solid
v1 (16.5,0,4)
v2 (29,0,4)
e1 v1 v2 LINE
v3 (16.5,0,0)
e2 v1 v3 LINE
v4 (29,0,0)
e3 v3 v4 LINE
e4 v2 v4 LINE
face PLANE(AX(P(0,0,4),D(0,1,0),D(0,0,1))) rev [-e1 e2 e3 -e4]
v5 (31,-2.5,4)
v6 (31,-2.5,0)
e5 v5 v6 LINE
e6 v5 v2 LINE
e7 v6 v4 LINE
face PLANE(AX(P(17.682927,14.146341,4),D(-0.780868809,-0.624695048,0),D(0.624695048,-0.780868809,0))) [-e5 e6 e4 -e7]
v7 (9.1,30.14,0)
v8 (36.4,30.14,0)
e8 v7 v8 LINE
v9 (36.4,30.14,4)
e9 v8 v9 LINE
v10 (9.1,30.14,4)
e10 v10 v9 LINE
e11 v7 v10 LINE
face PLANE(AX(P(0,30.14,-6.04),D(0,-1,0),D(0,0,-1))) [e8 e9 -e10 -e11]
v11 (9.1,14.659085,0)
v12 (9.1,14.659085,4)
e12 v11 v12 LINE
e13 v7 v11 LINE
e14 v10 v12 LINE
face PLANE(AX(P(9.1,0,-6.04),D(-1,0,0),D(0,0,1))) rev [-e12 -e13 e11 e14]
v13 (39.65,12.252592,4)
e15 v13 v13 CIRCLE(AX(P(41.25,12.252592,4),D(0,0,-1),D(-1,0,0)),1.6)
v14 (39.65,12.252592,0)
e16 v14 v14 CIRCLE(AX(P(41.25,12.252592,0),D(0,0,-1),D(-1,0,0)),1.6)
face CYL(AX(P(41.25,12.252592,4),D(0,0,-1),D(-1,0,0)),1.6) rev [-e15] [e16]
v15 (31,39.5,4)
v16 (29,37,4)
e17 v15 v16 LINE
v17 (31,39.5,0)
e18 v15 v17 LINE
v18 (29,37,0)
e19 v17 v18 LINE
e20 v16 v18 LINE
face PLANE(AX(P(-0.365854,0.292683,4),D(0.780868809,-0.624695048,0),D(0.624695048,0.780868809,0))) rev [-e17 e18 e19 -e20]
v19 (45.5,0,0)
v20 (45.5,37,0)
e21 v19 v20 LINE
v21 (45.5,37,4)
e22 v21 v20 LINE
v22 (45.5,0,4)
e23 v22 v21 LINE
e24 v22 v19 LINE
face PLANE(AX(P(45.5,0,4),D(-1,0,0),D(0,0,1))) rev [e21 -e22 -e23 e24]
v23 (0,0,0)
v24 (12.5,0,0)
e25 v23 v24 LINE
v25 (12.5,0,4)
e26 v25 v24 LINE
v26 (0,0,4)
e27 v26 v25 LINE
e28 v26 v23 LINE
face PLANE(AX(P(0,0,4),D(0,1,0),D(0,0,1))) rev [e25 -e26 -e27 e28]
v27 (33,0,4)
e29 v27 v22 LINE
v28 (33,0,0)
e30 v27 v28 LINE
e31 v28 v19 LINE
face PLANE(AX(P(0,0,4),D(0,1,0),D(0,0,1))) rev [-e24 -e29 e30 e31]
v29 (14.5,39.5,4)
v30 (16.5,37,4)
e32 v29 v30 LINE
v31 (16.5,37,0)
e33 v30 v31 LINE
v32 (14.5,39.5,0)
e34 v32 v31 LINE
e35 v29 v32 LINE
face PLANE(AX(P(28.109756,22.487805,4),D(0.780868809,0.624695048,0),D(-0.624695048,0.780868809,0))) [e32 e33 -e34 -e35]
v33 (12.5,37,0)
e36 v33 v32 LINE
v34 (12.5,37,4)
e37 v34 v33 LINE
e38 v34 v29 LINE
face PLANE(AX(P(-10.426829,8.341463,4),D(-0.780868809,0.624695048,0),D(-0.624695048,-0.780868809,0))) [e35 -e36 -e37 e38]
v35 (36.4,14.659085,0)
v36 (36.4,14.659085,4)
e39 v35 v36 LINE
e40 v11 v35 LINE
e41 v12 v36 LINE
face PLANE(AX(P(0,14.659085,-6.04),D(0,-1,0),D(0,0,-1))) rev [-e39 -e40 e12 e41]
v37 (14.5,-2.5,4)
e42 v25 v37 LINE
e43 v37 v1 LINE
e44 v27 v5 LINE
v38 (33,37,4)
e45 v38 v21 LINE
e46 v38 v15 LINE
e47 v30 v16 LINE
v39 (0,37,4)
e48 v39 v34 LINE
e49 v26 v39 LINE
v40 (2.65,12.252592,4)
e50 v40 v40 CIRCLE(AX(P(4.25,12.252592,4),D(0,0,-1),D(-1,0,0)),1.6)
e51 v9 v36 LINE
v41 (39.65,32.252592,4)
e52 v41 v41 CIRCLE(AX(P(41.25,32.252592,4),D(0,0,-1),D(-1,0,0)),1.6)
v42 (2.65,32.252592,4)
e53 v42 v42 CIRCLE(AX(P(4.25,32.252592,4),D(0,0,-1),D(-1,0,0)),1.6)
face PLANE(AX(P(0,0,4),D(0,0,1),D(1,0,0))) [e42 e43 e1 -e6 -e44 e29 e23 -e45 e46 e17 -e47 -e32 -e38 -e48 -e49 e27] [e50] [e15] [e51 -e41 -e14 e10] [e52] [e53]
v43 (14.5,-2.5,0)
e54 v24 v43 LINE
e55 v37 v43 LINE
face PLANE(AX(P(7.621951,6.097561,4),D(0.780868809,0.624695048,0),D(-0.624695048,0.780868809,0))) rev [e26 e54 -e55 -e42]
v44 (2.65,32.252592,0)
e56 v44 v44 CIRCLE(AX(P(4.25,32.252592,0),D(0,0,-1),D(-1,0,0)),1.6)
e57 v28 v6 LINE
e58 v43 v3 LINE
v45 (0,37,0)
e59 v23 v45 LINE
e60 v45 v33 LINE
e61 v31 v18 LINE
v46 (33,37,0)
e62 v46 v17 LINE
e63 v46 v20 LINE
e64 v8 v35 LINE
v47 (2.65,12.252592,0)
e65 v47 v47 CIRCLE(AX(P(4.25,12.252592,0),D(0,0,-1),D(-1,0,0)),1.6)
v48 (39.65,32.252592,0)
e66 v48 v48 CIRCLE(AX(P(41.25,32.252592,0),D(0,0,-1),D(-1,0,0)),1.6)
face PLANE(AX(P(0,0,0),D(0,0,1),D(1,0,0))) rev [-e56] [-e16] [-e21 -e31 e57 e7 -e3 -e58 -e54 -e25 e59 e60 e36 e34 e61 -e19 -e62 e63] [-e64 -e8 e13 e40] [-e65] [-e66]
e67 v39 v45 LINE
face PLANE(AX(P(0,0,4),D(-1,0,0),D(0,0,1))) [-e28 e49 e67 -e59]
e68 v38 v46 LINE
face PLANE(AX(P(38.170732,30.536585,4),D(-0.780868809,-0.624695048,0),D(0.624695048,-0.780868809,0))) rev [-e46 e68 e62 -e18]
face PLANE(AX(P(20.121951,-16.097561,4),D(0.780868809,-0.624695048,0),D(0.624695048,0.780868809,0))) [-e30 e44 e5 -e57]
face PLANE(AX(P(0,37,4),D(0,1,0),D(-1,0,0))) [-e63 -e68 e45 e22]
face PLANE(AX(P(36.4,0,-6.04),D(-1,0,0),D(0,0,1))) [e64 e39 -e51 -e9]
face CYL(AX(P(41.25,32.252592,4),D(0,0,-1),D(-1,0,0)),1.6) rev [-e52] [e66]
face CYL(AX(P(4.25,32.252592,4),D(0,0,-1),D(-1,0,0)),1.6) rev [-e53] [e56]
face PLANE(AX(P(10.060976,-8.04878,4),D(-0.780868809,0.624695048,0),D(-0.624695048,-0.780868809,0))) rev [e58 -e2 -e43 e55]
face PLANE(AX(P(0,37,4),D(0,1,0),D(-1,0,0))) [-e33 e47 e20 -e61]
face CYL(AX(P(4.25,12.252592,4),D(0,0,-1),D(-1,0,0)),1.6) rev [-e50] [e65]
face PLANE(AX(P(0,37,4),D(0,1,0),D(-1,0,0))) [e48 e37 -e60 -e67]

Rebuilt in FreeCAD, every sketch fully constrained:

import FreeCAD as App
import Part
import Sketcher
Q = App.Units.Quantity


def add_polygon(sketch, points):
    """Adds a closed chain of lines whose ends are joined by coincident constraints."""
    first, n = sketch.GeometryCount, len(points)
    for a, b in zip(points, points[1:] + points[:1]):
        sketch.addGeometry(Part.LineSegment(App.Vector(*a, 0), App.Vector(*b, 0)), False)
    for i in range(n):
        sketch.addConstraint(Sketcher.Constraint("Coincident", first + i, 2, first + (i + 1) % n, 1))

doc = App.newDocument("Part")
body = doc.addObject("PartDesign::Body", "Body")

# Sketch on XY plane
sketch1 = doc.addObject("Sketcher::SketchObject", "Sketch")
body.addObject(sketch1)
sketch1.AttachmentSupport = (doc.XY_Plane, [""])
sketch1.MapMode = "FlatFace"
add_polygon(sketch1, [(0, 37), (0, 0), (12.5, 0), (14.5, -2.5), (16.5, 0), (29, 0), (31, -2.5), (33, 0), (45.5, 0), (45.5, 37), (33, 37), (31, 39.5), (29, 37), (16.5, 37), (14.5, 39.5), (12.5, 37)])  # lines 0-15
sketch1.addConstraint([
    Sketcher.Constraint("Vertical", 0),
    Sketcher.Constraint("Horizontal", 1),
    Sketcher.Constraint("Horizontal", 4),
    Sketcher.Constraint("Horizontal", 7),
    Sketcher.Constraint("Vertical", 8),
    Sketcher.Constraint("Horizontal", 9),
    Sketcher.Constraint("Horizontal", 12),
    Sketcher.Constraint("Horizontal", 15),
    Sketcher.Constraint("Coincident", 0, 2, -1, 1),
    Sketcher.Constraint("PointOnObject", 3, 2, -1),
    Sketcher.Constraint("PointOnObject", 6, 2, -1),
    Sketcher.Constraint("Parallel", 2, 5),
    Sketcher.Constraint("Parallel", 3, 6),
    Sketcher.Constraint("Parallel", 5, 10),
    Sketcher.Constraint("Parallel", 6, 11),
    Sketcher.Constraint("Parallel", 10, 13),
    Sketcher.Constraint("Parallel", 11, 14),
    Sketcher.Constraint("Horizontal", 2, 2, 5, 2),
    Sketcher.Constraint("Horizontal", 9, 2, 11, 2),
    Sketcher.Constraint("Horizontal", 10, 2, 13, 2),
    Sketcher.Constraint("Horizontal", 12, 2, 14, 2),
    Sketcher.Constraint("Vertical", 6, 2, 9, 2),
    Sketcher.Constraint("Vertical", 5, 2, 10, 2),
    Sketcher.Constraint("Vertical", 4, 2, 11, 2),
    Sketcher.Constraint("Vertical", 3, 2, 12, 2),
    Sketcher.Constraint("Equal", 1, 4),
    Sketcher.Constraint("Equal", 4, 7),
    Sketcher.Constraint("DistanceY", 0, 2, 0, 1, Q("37 mm")),
    Sketcher.Constraint("DistanceX", 1, 1, 1, 2, Q("12.5 mm")),
    Sketcher.Constraint("DistanceX", -1, 1, 4, 2, Q("29 mm")),
    Sketcher.Constraint("DistanceY", 5, 2, 10, 2, Q("42 mm")),
])
pad1 = doc.addObject("PartDesign::Pad", "Pad")
body.addObject(pad1)
pad1.Profile = sketch1
pad1.Length = 4

# Sketch on XY plane
sketch2 = doc.addObject("Sketcher::SketchObject", "Sketch001")
body.addObject(sketch2)
sketch2.AttachmentSupport = (doc.XY_Plane, [""])
sketch2.MapMode = "FlatFace"
sketch2.AttachmentOffset = App.Placement(App.Vector(0, 0, 4), App.Rotation())
add_polygon(sketch2, [(9, 30), (9, 15), (36, 15), (36, 30)])  # lines 0-3
sketch2.addConstraint([
    Sketcher.Constraint("Vertical", 0),
    Sketcher.Constraint("Horizontal", 1),
    Sketcher.Constraint("Vertical", 2),
    Sketcher.Constraint("Horizontal", 3),
    Sketcher.Constraint("DistanceX", 1, 1, 1, 2, Q("27.3 mm")),
    Sketcher.Constraint("DistanceX", -1, 1, 0, 2, Q("9.1 mm")),
    Sketcher.Constraint("DistanceY", -1, 1, 2, 2, Q("30.14 mm")),
    Sketcher.Constraint("DistanceY", 0, 2, 0, 1, Q("15.480915 mm")),
])
pocket1 = doc.addObject("PartDesign::Pocket", "Pocket")
body.addObject(pocket1)
pocket1.Profile = sketch2
pocket1.Length = 10.04

# Sketch on XY plane
sketch3 = doc.addObject("Sketcher::SketchObject", "Sketch002")
body.addObject(sketch3)
sketch3.AttachmentSupport = (doc.XY_Plane, [""])
sketch3.MapMode = "FlatFace"
sketch3.addGeometry([
    Part.Circle(App.Vector(41.2, 32.3, 0), App.Vector(0, 0, 1), 1.6),
    Part.Circle(App.Vector(4.2, 32.3, 0), App.Vector(0, 0, 1), 1.6),
    Part.Circle(App.Vector(4.2, 12.3, 0), App.Vector(0, 0, 1), 1.6),
    Part.Circle(App.Vector(41.2, 12.3, 0), App.Vector(0, 0, 1), 1.6),
], False)
sketch3.addConstraint([
    Sketcher.Constraint("Equal", 0, 1),
    Sketcher.Constraint("Equal", 1, 2),
    Sketcher.Constraint("Equal", 2, 3),
    Sketcher.Constraint("Horizontal", 0, 3, 1, 3),
    Sketcher.Constraint("Horizontal", 2, 3, 3, 3),
    Sketcher.Constraint("Vertical", 1, 3, 2, 3),
    Sketcher.Constraint("Vertical", 0, 3, 3, 3),
    Sketcher.Constraint("Diameter", 0, Q("3.2 mm")),
    Sketcher.Constraint("DistanceX", 1, 3, 0, 3, Q("37 mm")),
    Sketcher.Constraint("DistanceY", 2, 3, 1, 3, Q("20 mm")),
    Sketcher.Constraint("DistanceX", -1, 1, 0, 3, Q("41.25 mm")),
    Sketcher.Constraint("DistanceY", -1, 1, 0, 3, Q("32.252592 mm")),
])
pocket2 = doc.addObject("PartDesign::Pocket", "Pocket001")
body.addObject(pocket2)
pocket2.Profile = sketch3
pocket2.Length = 4
pocket2.Reversed = True

doc.recompute()
